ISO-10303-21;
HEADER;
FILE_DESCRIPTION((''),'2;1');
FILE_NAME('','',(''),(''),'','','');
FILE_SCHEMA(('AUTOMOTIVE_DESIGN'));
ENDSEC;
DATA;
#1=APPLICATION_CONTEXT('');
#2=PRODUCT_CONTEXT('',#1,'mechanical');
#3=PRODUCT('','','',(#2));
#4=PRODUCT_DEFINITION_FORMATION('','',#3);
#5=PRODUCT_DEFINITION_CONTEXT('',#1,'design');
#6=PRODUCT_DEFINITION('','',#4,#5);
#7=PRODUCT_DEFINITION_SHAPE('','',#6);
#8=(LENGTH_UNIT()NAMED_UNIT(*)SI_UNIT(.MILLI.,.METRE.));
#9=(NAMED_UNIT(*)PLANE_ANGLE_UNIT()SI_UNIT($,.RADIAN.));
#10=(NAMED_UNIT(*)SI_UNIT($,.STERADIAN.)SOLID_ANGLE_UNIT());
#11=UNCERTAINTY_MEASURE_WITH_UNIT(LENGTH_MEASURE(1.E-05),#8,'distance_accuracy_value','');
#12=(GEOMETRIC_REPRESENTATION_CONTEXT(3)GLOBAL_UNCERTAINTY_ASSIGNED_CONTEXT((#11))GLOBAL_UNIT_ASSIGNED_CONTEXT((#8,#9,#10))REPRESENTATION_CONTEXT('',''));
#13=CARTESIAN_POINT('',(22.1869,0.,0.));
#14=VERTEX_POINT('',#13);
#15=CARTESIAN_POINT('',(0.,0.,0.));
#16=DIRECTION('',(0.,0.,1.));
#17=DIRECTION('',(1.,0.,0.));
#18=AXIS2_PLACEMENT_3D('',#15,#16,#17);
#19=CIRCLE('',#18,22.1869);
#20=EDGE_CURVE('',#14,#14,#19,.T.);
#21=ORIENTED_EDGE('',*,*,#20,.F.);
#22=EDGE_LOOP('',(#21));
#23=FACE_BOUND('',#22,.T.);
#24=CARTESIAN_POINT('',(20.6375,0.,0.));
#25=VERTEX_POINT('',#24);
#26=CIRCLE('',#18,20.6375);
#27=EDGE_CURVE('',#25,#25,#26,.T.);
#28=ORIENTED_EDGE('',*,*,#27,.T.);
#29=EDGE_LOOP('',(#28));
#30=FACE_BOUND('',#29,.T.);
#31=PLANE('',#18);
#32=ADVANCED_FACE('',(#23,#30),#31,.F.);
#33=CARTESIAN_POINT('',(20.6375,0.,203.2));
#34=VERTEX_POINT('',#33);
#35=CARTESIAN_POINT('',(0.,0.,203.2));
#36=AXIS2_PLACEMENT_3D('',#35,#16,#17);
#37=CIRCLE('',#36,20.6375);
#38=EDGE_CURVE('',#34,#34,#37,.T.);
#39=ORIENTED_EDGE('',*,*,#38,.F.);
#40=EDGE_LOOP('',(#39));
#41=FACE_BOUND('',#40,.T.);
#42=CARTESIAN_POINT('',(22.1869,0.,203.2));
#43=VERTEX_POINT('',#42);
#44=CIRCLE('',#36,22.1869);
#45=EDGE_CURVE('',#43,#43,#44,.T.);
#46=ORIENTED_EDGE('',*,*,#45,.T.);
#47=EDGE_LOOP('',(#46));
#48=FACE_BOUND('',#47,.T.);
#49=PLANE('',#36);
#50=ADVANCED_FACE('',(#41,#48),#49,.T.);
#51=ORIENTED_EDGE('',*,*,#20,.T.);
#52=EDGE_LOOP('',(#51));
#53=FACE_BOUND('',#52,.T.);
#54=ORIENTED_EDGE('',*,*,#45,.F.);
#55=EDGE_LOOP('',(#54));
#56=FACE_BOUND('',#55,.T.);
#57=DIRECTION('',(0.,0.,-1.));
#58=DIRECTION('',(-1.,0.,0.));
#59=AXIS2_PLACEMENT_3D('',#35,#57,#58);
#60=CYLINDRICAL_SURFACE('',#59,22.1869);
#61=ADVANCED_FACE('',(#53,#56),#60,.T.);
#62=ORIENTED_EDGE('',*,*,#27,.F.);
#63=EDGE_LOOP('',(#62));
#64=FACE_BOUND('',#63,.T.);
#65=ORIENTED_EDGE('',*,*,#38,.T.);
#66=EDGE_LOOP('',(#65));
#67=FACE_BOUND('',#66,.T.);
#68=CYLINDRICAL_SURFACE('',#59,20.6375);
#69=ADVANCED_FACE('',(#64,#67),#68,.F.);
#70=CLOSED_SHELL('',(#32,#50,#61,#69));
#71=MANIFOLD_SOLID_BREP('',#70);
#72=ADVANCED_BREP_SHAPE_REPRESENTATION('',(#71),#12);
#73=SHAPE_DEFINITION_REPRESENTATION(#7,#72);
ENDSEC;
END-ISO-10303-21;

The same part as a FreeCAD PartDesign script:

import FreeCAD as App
import Part
import Sketcher
from FreeCAD import Vector
Q = App.Units.Quantity

doc = App.newDocument("Part")
params = doc.addObject("Spreadsheet::Sheet", "Params")
for row, (alias, value) in enumerate([
    ("sketch1_diameter", "1.747 in"),
    ("sketch1_diameter2", "1.625 in"),
    ("pad1_length", "8 in"),
], start=1):
    params.set(f"A{row}", alias)
    params.set(f"B{row}", "=" + value)
    params.setAlias(f"B{row}", alias)

body = doc.addObject("PartDesign::Body", "Body")

sketch1 = body.newObject("Sketcher::SketchObject", "Sketch")
sketch1.AttachmentSupport = (doc.getObject("XY_Plane"), [""])
sketch1.MapMode = "FlatFace"
sketch1.addGeometry([
    Part.Circle(Vector(0, 0, 0), Vector(0, 0, 1), 22),
    Part.Circle(Vector(0, 0, 0), Vector(0, 0, 1), 21),
], False)
sketch1.addConstraint([
    Sketcher.Constraint("Coincident", 0, 3, -1, 1),
    Sketcher.Constraint("Coincident", 1, 3, -1, 1),
    Sketcher.Constraint("Diameter", 0, Q("1.747 in")),
    Sketcher.Constraint("Diameter", 1, Q("1.625 in")),
])
sketch1.setExpression("Constraints[2]", "Params.sketch1_diameter")
sketch1.setExpression("Constraints[3]", "Params.sketch1_diameter2")
pad1 = body.newObject("PartDesign::Pad", "Pad")
pad1.Profile = sketch1
pad1.setExpression("Length", "Params.pad1_length")

doc.recompute()
